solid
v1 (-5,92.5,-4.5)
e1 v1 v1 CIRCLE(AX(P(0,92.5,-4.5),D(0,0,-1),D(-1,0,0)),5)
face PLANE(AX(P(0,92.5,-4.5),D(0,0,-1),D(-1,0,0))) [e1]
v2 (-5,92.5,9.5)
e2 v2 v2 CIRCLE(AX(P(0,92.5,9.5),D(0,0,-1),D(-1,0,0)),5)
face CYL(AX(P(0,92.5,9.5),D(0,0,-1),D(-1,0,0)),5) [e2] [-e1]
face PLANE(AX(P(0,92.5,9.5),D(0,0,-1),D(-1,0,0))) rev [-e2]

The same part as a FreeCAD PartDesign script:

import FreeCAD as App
import Part
import Sketcher
Q = App.Units.Quantity

doc = App.newDocument("Part")
body = doc.addObject("PartDesign::Body", "Body")

# Sketch on XY plane
sketch1 = body.newObject("Sketcher::SketchObject", "Sketch")
sketch1.AttachmentSupport = (doc.getObject("XY_Plane"), [""])
sketch1.MapMode = "FlatFace"
sketch1.AttachmentOffset = App.Placement(App.Vector(0, 0, 2.5), App.Rotation())
sketch1.addGeometry(Part.Circle(App.Vector(0, 92, 0), App.Vector(0, 0, 1), 5), False)
sketch1.addConstraint([
    Sketcher.Constraint("PointOnObject", 0, 3, -2),
    Sketcher.Constraint("Diameter", 0, Q("10 mm")),
    Sketcher.Constraint("DistanceY", -1, 1, 0, 3, Q("92.5 mm")),
])
pad1 = body.newObject("PartDesign::Pad", "Pad")
pad1.Profile = sketch1
pad1.Type = "TwoLengths"
pad1.Length = 7
pad1.Length2 = 7
pad1.Reversed = True

doc.recompute()
